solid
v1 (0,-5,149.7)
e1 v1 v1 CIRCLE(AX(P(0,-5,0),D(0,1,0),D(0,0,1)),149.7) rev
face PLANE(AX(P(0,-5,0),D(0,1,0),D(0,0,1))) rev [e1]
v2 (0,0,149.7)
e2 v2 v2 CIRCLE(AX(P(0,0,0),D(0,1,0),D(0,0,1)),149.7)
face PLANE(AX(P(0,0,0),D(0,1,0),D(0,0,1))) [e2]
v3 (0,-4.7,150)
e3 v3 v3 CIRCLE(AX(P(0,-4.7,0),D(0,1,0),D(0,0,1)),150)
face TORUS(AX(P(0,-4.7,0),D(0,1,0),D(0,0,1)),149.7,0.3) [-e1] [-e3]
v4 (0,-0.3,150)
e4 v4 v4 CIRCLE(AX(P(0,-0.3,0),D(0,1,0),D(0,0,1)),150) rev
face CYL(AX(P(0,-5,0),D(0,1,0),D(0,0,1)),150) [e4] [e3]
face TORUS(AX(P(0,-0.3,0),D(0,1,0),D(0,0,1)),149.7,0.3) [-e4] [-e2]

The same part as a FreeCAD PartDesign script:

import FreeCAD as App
import Part
import Sketcher
Q = App.Units.Quantity


def edges_at(feature, points):
    """Names of the edges that pass closest to the given points."""
    edges = feature.Shape.Edges
    near = lambda p: min(range(len(edges)), key=lambda i: edges[i].distToShape(Part.Vertex(*p))[0])
    return sorted({f"Edge{near(p) + 1}" for p in points})

doc = App.newDocument("Part")
params = doc.addObject("Spreadsheet::Sheet", "Params")
for row, (alias, value) in enumerate([
    ("sketch1_diameter", "300 mm"),
    ("pad1_length", "5 mm"),
    ("fillet_radius", "0.3 mm"),
], start=1):
    params.set(f"A{row}", alias)
    params.set(f"B{row}", "=" + value)
    params.setAlias(f"B{row}", alias)

body = doc.addObject("PartDesign::Body", "Body")

# Sketch on XZ plane
sketch1 = body.newObject("Sketcher::SketchObject", "Sketch")
sketch1.AttachmentSupport = (doc.getObject("XZ_Plane"), [""])
sketch1.MapMode = "FlatFace"
sketch1.addGeometry(Part.Circle(App.Vector(0, 0, 0), App.Vector(0, 0, 1), 150), False)
sketch1.addConstraint([
    Sketcher.Constraint("Coincident", 0, 3, -1, 1),
    Sketcher.Constraint("Diameter", 0, Q("300 mm")),
])
sketch1.setExpression("Constraints[1]", "Params.sketch1_diameter")
pad1 = body.newObject("PartDesign::Pad", "Pad")
pad1.Profile = sketch1
pad1.setExpression("Length", "Params.pad1_length")
doc.recompute()

fillet = body.newObject("PartDesign::Fillet", "Fillet")
fillet.Base = (pad1, edges_at(pad1, [(-150, 0, 0), (-150, -5, 0)]))
fillet.setExpression("Radius", "Params.fillet_radius")

doc.recompute()
